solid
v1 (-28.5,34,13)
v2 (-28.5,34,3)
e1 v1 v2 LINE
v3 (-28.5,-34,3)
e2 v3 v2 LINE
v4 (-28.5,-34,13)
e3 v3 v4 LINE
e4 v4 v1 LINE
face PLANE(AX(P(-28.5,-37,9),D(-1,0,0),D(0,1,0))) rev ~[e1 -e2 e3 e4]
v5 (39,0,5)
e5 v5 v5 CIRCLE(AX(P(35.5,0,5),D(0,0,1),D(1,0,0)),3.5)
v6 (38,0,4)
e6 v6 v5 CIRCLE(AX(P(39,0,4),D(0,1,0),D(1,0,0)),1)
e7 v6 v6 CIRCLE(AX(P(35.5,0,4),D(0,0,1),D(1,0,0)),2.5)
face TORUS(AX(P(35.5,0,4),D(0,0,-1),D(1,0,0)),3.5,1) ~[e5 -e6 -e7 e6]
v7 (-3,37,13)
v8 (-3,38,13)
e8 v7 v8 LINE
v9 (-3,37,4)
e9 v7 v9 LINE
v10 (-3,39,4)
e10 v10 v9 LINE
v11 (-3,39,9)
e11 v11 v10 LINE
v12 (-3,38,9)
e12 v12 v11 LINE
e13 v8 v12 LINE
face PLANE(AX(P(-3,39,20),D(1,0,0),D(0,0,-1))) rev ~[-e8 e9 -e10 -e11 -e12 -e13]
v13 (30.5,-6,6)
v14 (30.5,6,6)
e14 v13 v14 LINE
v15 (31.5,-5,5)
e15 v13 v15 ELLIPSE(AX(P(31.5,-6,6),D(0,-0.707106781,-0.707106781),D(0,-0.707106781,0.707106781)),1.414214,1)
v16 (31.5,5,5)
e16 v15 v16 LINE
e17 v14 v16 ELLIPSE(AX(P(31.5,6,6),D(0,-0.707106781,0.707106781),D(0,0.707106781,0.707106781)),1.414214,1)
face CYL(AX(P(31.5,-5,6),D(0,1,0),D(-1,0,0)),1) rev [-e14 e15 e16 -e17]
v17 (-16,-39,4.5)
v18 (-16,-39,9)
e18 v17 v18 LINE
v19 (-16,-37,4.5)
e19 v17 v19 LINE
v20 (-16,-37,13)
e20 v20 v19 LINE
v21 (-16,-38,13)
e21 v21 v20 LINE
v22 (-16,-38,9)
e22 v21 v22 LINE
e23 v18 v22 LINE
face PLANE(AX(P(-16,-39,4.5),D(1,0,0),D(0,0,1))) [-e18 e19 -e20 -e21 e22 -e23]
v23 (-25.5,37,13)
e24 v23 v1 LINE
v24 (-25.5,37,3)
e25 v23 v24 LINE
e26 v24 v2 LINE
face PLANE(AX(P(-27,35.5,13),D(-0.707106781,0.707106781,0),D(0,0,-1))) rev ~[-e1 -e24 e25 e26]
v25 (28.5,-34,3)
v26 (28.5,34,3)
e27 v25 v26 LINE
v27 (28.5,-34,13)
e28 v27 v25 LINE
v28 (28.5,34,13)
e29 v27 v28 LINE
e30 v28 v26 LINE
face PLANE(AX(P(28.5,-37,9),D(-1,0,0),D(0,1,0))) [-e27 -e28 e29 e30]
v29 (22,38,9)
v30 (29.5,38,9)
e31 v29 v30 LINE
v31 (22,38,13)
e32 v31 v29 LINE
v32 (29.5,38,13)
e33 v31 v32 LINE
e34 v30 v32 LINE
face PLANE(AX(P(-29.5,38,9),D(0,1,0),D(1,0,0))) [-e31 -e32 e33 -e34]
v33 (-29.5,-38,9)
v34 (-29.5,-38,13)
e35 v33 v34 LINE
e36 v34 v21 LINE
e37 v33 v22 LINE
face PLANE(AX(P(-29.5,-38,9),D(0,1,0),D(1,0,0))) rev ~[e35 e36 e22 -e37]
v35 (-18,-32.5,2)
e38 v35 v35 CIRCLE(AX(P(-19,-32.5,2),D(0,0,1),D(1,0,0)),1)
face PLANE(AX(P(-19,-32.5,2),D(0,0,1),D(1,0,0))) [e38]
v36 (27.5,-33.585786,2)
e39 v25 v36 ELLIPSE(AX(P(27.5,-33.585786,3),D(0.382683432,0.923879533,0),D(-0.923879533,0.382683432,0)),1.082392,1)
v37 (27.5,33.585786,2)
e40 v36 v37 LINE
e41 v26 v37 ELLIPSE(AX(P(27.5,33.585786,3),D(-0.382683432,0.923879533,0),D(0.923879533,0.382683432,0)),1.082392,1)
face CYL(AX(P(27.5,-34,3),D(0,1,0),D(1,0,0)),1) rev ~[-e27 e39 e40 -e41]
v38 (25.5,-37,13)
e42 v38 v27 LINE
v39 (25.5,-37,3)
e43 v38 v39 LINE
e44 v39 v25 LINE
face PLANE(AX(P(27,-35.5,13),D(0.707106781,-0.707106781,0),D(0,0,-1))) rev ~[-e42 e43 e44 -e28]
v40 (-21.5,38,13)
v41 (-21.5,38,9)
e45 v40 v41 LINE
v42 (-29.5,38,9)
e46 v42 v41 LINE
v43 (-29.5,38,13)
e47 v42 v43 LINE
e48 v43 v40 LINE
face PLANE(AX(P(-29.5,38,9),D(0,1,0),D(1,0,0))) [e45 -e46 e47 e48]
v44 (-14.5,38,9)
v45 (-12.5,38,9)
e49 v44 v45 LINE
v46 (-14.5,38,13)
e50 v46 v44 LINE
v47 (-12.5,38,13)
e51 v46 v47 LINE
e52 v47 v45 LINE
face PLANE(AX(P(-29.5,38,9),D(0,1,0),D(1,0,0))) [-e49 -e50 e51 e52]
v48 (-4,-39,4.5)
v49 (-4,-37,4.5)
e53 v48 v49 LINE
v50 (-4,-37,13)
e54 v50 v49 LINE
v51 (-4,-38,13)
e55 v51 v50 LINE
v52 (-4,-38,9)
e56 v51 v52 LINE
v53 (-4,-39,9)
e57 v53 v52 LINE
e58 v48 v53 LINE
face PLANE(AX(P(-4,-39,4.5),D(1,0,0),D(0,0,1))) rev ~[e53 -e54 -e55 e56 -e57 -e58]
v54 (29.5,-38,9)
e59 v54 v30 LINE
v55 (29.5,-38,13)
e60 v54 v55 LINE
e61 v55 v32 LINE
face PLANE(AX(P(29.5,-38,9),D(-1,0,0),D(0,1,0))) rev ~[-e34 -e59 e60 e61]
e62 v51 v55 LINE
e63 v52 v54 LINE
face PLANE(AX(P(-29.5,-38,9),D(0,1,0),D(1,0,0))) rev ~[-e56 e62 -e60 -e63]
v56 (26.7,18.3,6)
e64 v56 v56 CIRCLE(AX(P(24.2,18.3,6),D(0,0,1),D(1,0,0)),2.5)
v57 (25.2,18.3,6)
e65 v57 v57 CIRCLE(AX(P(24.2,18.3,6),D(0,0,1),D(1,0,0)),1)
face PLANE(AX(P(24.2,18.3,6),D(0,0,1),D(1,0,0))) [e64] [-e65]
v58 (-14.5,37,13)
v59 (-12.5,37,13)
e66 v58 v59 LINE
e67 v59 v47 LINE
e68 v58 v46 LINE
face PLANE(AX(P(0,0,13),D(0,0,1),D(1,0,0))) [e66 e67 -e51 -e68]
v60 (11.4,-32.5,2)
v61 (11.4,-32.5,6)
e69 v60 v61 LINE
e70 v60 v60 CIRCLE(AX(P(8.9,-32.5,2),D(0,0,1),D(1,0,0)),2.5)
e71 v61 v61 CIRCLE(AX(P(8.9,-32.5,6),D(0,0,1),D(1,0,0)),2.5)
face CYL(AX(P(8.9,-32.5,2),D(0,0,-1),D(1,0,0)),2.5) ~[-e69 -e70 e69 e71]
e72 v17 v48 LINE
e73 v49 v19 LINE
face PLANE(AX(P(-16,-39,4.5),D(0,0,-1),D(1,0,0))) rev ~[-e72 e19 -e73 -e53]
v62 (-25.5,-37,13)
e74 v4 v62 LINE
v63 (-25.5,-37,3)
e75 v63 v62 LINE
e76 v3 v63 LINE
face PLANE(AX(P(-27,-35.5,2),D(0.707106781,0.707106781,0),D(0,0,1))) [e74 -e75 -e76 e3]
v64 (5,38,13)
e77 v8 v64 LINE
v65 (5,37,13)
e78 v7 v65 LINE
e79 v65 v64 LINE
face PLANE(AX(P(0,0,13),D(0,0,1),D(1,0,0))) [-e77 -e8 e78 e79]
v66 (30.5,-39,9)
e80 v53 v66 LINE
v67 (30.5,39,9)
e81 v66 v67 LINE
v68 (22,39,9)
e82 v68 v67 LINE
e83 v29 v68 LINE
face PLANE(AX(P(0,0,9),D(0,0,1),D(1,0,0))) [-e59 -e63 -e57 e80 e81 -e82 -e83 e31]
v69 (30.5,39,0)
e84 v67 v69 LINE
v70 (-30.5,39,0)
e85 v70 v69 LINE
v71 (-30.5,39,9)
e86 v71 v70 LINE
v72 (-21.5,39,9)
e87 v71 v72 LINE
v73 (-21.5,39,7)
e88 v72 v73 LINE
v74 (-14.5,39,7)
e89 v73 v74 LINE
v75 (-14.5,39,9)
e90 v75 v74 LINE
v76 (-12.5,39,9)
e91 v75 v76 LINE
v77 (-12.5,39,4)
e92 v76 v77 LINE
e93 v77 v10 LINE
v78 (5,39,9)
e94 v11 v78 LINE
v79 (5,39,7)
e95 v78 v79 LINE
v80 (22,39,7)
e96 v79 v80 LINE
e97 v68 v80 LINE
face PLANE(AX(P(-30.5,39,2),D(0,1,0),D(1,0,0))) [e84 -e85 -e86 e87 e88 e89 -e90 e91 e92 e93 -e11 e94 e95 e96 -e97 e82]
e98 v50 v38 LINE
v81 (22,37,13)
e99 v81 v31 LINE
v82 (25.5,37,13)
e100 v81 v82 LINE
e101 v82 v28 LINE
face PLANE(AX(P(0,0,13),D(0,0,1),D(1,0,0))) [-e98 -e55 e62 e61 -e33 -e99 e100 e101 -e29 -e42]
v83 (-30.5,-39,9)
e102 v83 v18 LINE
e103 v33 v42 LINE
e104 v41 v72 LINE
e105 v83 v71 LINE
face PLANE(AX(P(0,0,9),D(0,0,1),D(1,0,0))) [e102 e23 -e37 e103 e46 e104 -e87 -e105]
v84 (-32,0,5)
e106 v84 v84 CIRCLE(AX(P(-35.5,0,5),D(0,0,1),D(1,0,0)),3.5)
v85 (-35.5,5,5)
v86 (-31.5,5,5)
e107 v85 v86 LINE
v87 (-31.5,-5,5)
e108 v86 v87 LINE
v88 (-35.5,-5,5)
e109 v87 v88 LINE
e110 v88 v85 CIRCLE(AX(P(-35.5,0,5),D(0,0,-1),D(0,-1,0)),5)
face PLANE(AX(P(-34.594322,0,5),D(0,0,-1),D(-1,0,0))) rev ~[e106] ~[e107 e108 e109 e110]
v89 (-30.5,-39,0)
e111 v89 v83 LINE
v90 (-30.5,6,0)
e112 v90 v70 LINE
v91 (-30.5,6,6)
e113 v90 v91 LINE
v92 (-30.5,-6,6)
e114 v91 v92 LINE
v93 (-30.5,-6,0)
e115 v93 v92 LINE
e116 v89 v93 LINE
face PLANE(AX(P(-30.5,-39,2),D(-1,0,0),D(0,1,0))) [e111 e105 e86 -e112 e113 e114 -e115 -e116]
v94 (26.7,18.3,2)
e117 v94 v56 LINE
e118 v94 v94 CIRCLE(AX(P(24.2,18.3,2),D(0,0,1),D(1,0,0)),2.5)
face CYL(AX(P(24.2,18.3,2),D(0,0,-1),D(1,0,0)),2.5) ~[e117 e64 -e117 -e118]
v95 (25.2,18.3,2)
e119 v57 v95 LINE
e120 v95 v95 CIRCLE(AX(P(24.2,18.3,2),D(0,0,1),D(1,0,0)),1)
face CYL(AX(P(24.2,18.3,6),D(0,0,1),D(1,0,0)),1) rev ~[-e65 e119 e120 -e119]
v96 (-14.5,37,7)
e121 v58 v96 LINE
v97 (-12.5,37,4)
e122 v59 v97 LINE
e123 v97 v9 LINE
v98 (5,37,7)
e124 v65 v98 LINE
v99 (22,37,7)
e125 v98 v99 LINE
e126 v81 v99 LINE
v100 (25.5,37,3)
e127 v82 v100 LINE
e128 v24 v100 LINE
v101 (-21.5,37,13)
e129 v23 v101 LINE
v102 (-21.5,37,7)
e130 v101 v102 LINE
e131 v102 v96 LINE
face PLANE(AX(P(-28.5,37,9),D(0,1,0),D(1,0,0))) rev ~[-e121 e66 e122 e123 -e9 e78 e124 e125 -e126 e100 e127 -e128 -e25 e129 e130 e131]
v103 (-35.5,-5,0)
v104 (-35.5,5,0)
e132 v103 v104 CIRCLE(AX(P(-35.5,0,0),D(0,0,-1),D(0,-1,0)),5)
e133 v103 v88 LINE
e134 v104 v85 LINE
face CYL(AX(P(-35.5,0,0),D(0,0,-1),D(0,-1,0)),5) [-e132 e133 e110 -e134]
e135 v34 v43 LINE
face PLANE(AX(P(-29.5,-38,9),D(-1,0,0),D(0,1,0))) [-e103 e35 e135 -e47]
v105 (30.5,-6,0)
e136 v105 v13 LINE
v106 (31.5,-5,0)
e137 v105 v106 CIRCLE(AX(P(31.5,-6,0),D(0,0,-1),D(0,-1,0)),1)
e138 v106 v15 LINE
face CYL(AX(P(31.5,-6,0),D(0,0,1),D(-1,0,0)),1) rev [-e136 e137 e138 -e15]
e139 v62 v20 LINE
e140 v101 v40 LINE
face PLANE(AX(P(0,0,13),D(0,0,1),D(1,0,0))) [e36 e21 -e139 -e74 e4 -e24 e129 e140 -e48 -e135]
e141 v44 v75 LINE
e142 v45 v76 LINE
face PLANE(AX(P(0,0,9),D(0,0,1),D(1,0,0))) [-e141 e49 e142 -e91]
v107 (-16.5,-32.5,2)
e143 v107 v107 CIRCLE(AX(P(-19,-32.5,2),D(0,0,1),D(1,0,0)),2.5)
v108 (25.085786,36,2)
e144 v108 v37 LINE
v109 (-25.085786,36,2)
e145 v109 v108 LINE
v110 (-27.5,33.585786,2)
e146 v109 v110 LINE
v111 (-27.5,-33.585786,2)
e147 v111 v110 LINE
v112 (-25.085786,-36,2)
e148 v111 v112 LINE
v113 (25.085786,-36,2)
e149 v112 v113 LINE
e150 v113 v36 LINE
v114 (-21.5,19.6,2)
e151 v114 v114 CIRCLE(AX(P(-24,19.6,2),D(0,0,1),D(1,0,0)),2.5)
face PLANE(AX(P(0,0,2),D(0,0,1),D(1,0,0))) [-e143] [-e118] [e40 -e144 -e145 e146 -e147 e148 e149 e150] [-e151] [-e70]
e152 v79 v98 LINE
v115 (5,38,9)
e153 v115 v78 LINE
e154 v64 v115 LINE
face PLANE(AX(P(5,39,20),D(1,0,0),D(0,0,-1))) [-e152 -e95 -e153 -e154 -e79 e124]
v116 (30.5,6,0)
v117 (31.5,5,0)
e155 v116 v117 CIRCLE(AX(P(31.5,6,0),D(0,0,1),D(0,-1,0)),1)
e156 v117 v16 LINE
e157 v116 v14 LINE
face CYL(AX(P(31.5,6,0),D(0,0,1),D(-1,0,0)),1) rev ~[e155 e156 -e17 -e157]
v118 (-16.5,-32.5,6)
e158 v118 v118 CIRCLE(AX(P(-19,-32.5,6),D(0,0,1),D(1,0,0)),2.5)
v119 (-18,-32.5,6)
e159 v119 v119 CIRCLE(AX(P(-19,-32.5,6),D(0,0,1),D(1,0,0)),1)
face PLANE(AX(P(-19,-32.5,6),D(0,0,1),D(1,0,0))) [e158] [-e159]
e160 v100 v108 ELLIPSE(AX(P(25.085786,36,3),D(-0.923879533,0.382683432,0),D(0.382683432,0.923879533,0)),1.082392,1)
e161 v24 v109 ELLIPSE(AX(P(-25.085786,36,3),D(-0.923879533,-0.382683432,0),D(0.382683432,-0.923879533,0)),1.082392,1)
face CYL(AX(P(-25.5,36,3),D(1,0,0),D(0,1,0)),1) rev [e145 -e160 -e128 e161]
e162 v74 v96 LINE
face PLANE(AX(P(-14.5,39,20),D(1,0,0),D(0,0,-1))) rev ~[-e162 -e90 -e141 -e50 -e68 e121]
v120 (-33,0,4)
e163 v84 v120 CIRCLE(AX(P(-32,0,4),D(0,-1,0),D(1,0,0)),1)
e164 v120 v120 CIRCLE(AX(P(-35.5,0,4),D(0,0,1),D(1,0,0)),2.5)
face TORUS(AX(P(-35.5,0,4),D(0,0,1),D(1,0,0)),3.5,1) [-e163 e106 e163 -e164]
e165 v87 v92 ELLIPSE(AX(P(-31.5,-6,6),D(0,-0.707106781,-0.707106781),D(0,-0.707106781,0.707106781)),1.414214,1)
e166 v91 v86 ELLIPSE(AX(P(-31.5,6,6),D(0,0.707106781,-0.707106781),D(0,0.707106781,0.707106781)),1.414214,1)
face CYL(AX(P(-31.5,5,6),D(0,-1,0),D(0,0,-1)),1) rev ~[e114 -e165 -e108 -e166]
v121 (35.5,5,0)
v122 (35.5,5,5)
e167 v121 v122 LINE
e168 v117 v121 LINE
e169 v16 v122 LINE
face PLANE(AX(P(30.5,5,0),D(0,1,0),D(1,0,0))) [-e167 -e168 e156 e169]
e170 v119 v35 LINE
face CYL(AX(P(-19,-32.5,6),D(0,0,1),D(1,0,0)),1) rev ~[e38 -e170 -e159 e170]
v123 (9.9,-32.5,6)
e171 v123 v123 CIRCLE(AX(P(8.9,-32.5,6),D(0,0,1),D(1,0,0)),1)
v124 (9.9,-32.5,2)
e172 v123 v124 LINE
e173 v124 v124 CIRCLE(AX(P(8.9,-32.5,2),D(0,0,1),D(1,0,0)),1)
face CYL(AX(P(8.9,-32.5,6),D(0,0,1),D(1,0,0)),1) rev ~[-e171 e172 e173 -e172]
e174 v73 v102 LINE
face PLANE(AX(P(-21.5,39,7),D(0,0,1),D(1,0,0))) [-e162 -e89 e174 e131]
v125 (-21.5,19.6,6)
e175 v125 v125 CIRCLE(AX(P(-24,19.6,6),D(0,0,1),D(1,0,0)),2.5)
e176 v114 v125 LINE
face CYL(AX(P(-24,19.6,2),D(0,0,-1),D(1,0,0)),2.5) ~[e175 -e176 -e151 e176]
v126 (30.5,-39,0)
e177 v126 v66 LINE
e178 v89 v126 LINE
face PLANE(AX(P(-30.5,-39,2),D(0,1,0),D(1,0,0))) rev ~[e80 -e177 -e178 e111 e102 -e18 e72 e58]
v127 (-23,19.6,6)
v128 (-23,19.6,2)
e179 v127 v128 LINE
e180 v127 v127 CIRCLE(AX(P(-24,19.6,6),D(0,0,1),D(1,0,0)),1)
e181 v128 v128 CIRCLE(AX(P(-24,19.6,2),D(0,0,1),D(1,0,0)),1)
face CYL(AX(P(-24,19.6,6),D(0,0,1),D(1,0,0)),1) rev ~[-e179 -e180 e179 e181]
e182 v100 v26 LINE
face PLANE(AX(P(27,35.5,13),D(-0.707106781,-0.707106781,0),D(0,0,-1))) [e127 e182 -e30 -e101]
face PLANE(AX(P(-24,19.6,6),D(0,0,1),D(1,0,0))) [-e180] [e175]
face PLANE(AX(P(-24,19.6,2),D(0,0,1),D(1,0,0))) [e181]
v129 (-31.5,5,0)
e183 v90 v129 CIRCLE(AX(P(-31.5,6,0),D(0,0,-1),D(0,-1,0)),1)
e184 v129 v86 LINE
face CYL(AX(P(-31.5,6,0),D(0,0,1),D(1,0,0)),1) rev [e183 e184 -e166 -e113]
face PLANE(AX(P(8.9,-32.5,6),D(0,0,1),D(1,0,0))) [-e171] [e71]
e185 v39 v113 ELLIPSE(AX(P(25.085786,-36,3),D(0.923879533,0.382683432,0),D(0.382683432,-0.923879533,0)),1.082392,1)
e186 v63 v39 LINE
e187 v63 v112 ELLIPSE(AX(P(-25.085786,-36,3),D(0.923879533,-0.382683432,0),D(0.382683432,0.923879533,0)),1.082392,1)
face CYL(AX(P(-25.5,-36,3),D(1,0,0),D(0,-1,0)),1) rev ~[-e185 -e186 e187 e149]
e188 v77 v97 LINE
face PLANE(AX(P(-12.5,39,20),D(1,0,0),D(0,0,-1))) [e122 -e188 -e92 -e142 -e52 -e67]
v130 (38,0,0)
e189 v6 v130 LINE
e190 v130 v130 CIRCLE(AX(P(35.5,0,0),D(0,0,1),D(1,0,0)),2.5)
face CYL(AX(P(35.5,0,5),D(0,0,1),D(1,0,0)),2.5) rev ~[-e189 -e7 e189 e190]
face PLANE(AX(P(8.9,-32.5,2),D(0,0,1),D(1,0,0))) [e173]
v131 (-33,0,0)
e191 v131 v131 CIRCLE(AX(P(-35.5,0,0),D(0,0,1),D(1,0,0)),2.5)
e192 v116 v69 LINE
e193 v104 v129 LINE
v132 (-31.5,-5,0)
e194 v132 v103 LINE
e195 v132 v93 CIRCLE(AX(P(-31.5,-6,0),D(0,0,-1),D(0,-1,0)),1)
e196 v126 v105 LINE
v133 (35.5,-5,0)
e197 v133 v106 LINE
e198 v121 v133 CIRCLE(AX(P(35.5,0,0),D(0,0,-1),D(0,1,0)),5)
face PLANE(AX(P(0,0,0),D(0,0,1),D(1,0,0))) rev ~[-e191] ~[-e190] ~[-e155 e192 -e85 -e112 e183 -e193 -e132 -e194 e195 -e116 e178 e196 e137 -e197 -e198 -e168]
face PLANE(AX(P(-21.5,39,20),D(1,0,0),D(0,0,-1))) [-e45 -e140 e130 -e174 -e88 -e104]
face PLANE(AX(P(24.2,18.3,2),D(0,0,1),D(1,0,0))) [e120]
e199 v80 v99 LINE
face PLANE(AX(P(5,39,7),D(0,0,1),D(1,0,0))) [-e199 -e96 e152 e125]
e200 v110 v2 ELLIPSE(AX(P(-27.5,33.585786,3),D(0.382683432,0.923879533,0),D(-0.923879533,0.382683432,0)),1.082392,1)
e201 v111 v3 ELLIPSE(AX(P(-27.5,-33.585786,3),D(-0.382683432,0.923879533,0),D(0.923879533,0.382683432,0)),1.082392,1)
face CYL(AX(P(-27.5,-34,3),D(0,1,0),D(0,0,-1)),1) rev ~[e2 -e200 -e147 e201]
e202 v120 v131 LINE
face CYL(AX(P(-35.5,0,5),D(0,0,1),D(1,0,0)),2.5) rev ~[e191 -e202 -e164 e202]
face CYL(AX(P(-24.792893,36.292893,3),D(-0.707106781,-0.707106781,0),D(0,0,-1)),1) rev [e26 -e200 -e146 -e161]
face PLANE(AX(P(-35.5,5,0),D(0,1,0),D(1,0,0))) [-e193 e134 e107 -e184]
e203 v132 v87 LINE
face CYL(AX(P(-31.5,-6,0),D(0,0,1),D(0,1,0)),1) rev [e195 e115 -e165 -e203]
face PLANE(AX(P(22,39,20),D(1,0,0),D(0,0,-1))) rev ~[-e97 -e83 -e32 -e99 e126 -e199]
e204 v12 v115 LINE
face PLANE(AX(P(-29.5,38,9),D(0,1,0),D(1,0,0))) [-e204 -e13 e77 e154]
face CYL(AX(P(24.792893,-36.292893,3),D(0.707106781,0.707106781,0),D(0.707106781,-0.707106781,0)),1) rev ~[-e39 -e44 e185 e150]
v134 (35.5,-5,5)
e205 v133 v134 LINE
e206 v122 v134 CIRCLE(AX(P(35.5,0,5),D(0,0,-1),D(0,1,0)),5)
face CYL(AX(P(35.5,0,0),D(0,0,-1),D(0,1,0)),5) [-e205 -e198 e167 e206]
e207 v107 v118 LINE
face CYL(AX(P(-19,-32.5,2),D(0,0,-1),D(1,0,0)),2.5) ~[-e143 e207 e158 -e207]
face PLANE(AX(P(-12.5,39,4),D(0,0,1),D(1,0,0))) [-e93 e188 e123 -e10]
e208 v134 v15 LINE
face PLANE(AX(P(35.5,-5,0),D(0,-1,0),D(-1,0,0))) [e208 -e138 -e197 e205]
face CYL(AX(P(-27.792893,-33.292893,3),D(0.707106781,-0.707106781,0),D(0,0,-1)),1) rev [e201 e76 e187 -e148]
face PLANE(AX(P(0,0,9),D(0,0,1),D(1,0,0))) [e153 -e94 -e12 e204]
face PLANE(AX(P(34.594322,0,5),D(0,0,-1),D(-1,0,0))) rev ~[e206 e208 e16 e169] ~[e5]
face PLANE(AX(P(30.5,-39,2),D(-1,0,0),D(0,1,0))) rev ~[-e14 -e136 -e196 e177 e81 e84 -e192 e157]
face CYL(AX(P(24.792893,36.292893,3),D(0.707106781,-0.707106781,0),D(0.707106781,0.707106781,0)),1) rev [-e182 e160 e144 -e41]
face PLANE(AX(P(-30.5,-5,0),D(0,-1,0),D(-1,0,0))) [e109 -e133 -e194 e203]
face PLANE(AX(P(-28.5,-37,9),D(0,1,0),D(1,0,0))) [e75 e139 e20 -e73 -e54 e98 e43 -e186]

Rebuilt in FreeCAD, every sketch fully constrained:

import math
import FreeCAD as App
import Part
import Sketcher
Q = App.Units.Quantity


def edges_at(feature, points):
    """Names of the edges that pass closest to the given points."""
    edges = feature.Shape.Edges
    near = lambda p: min(range(len(edges)), key=lambda i: edges[i].distToShape(Part.Vertex(*p))[0])
    return sorted({f"Edge{near(p) + 1}" for p in points})

doc = App.newDocument("Part")
body = doc.addObject("PartDesign::Body", "Body")

# Sketch on XY plane
sketch1 = doc.addObject("Sketcher::SketchObject", "Sketch")
body.addObject(sketch1)
sketch1.AttachmentSupport = (doc.XY_Plane, [""])
sketch1.MapMode = "FlatFace"
sketch1.addGeometry(Part.LineSegment(App.Vector(-30.5, 39, 0), App.Vector(-30.5, -39, 0)), False)
sketch1.addGeometry(Part.LineSegment(App.Vector(-30.5, -39, 0), App.Vector(30.5, -39, 0)), False)
sketch1.addGeometry(Part.LineSegment(App.Vector(30.5, -39, 0), App.Vector(30.5, 39, 0)), False)
sketch1.addGeometry(Part.LineSegment(App.Vector(30.5, 39, 0), App.Vector(-30.5, 39, 0)), False)
sketch1.addConstraint(Sketcher.Constraint("Coincident", 0, 2, 1, 1))
sketch1.addConstraint(Sketcher.Constraint("Coincident", 1, 2, 2, 1))
sketch1.addConstraint(Sketcher.Constraint("Coincident", 2, 2, 3, 1))
sketch1.addConstraint(Sketcher.Constraint("Coincident", 3, 2, 0, 1))
sketch1.addConstraint(Sketcher.Constraint("Vertical", 0))
sketch1.addConstraint(Sketcher.Constraint("Horizontal", 1))
sketch1.addConstraint(Sketcher.Constraint("Vertical", 2))
sketch1.addConstraint(Sketcher.Constraint("Horizontal", 3))
sketch1.addConstraint(Sketcher.Constraint("Symmetric", 0, 2, 2, 2, -1, 1))
sketch1.addConstraint(Sketcher.Constraint("DistanceX", 1, 1, 1, 2, Q("61 mm")))
sketch1.addConstraint(Sketcher.Constraint("DistanceY", 0, 2, 0, 1, Q("78 mm")))
pad1 = doc.addObject("PartDesign::Pad", "Pad")
body.addObject(pad1)
pad1.Profile = sketch1
pad1.Length = 2

# Sketch on XY plane
sketch2 = doc.addObject("Sketcher::SketchObject", "Sketch001")
body.addObject(sketch2)
sketch2.AttachmentSupport = (doc.XY_Plane, [""])
sketch2.MapMode = "FlatFace"
sketch2.AttachmentOffset = App.Placement(App.Vector(0, 0, 2), App.Rotation())
sketch2.addGeometry(Part.LineSegment(App.Vector(-30.5, 39, 0), App.Vector(-30.5, -39, 0)), False)
sketch2.addGeometry(Part.LineSegment(App.Vector(-30.5, -39, 0), App.Vector(30.5, -39, 0)), False)
sketch2.addGeometry(Part.LineSegment(App.Vector(30.5, -39, 0), App.Vector(30.5, 39, 0)), False)
sketch2.addGeometry(Part.LineSegment(App.Vector(30.5, 39, 0), App.Vector(-30.5, 39, 0)), False)
sketch2.addGeometry(Part.LineSegment(App.Vector(28.5, -37, 0), App.Vector(-28.5, -37, 0)), False)
sketch2.addGeometry(Part.LineSegment(App.Vector(-28.5, -37, 0), App.Vector(-28.5, 37, 0)), False)
sketch2.addGeometry(Part.LineSegment(App.Vector(-28.5, 37, 0), App.Vector(28.5, 37, 0)), False)
sketch2.addGeometry(Part.LineSegment(App.Vector(28.5, 37, 0), App.Vector(28.5, -37, 0)), False)
sketch2.addConstraint(Sketcher.Constraint("Coincident", 0, 2, 1, 1))
sketch2.addConstraint(Sketcher.Constraint("Coincident", 1, 2, 2, 1))
sketch2.addConstraint(Sketcher.Constraint("Coincident", 2, 2, 3, 1))
sketch2.addConstraint(Sketcher.Constraint("Coincident", 3, 2, 0, 1))
sketch2.addConstraint(Sketcher.Constraint("Coincident", 4, 2, 5, 1))
sketch2.addConstraint(Sketcher.Constraint("Coincident", 5, 2, 6, 1))
sketch2.addConstraint(Sketcher.Constraint("Coincident", 6, 2, 7, 1))
sketch2.addConstraint(Sketcher.Constraint("Coincident", 7, 2, 4, 1))
sketch2.addConstraint(Sketcher.Constraint("Vertical", 0))
sketch2.addConstraint(Sketcher.Constraint("Horizontal", 1))
sketch2.addConstraint(Sketcher.Constraint("Vertical", 2))
sketch2.addConstraint(Sketcher.Constraint("Horizontal", 3))
sketch2.addConstraint(Sketcher.Constraint("Horizontal", 4))
sketch2.addConstraint(Sketcher.Constraint("Vertical", 5))
sketch2.addConstraint(Sketcher.Constraint("Horizontal", 6))
sketch2.addConstraint(Sketcher.Constraint("Vertical", 7))
sketch2.addConstraint(Sketcher.Constraint("Symmetric", 0, 2, 2, 2, -1, 1))
sketch2.addConstraint(Sketcher.Constraint("Symmetric", 4, 2, 6, 2, -1, 1))
sketch2.addConstraint(Sketcher.Constraint("DistanceX", 1, 1, 1, 2, Q("61 mm")))
sketch2.addConstraint(Sketcher.Constraint("DistanceX", 4, 2, 4, 1, Q("57 mm")))
sketch2.addConstraint(Sketcher.Constraint("DistanceY", 0, 2, 0, 1, Q("78 mm")))
sketch2.addConstraint(Sketcher.Constraint("DistanceY", 5, 1, 5, 2, Q("74 mm")))
pad2 = doc.addObject("PartDesign::Pad", "Pad001")
body.addObject(pad2)
pad2.Profile = sketch2
pad2.Length = 7

# Sketch on XY plane
sketch3 = doc.addObject("Sketcher::SketchObject", "Sketch002")
body.addObject(sketch3)
sketch3.AttachmentSupport = (doc.XY_Plane, [""])
sketch3.MapMode = "FlatFace"
sketch3.AttachmentOffset = App.Placement(App.Vector(0, 0, 9), App.Rotation())
sketch3.addGeometry(Part.LineSegment(App.Vector(-29.5, 38, 0), App.Vector(-29.5, -38, 0)), False)
sketch3.addGeometry(Part.LineSegment(App.Vector(-29.5, -38, 0), App.Vector(29.5, -38, 0)), False)
sketch3.addGeometry(Part.LineSegment(App.Vector(29.5, -38, 0), App.Vector(29.5, 38, 0)), False)
sketch3.addGeometry(Part.LineSegment(App.Vector(29.5, 38, 0), App.Vector(-29.5, 38, 0)), False)
sketch3.addGeometry(Part.LineSegment(App.Vector(28.5, -37, 0), App.Vector(-28.5, -37, 0)), False)
sketch3.addGeometry(Part.LineSegment(App.Vector(-28.5, -37, 0), App.Vector(-28.5, 37, 0)), False)
sketch3.addGeometry(Part.LineSegment(App.Vector(-28.5, 37, 0), App.Vector(28.5, 37, 0)), False)
sketch3.addGeometry(Part.LineSegment(App.Vector(28.5, 37, 0), App.Vector(28.5, -37, 0)), False)
sketch3.addConstraint(Sketcher.Constraint("Coincident", 0, 2, 1, 1))
sketch3.addConstraint(Sketcher.Constraint("Coincident", 1, 2, 2, 1))
sketch3.addConstraint(Sketcher.Constraint("Coincident", 2, 2, 3, 1))
sketch3.addConstraint(Sketcher.Constraint("Coincident", 3, 2, 0, 1))
sketch3.addConstraint(Sketcher.Constraint("Coincident", 4, 2, 5, 1))
sketch3.addConstraint(Sketcher.Constraint("Coincident", 5, 2, 6, 1))
sketch3.addConstraint(Sketcher.Constraint("Coincident", 6, 2, 7, 1))
sketch3.addConstraint(Sketcher.Constraint("Coincident", 7, 2, 4, 1))
sketch3.addConstraint(Sketcher.Constraint("Vertical", 0))
sketch3.addConstraint(Sketcher.Constraint("Horizontal", 1))
sketch3.addConstraint(Sketcher.Constraint("Vertical", 2))
sketch3.addConstraint(Sketcher.Constraint("Horizontal", 3))
sketch3.addConstraint(Sketcher.Constraint("Horizontal", 4))
sketch3.addConstraint(Sketcher.Constraint("Vertical", 5))
sketch3.addConstraint(Sketcher.Constraint("Horizontal", 6))
sketch3.addConstraint(Sketcher.Constraint("Vertical", 7))
sketch3.addConstraint(Sketcher.Constraint("Symmetric", 0, 2, 2, 2, -1, 1))
sketch3.addConstraint(Sketcher.Constraint("Symmetric", 4, 2, 6, 2, -1, 1))
sketch3.addConstraint(Sketcher.Constraint("DistanceX", 1, 1, 1, 2, Q("59 mm")))
sketch3.addConstraint(Sketcher.Constraint("DistanceX", 4, 2, 4, 1, Q("57 mm")))
sketch3.addConstraint(Sketcher.Constraint("DistanceY", 0, 2, 0, 1, Q("76 mm")))
sketch3.addConstraint(Sketcher.Constraint("DistanceY", 5, 1, 5, 2, Q("74 mm")))
pad3 = doc.addObject("PartDesign::Pad", "Pad002")
body.addObject(pad3)
pad3.Profile = sketch3
pad3.Length = 4

# Sketch on XY plane
sketch4 = doc.addObject("Sketcher::SketchObject", "Sketch003")
body.addObject(sketch4)
sketch4.AttachmentSupport = (doc.XY_Plane, [""])
sketch4.MapMode = "FlatFace"
sketch4.AttachmentOffset = App.Placement(App.Vector(0, 0, 2), App.Rotation())
sketch4.addGeometry(Part.Circle(App.Vector(-24, 19.6, 0), App.Vector(0, 0, 1), 2.5), False)
sketch4.addGeometry(Part.Circle(App.Vector(24.2, 18.3, 0), App.Vector(0, 0, 1), 2.5), False)
sketch4.addGeometry(Part.Circle(App.Vector(8.9, -32.5, 0), App.Vector(0, 0, 1), 2.5), False)
sketch4.addGeometry(Part.Circle(App.Vector(-19, -32.5, 0), App.Vector(0, 0, 1), 2.5), False)
sketch4.addConstraint(Sketcher.Constraint("Equal", 0, 1))
sketch4.addConstraint(Sketcher.Constraint("Equal", 1, 2))
sketch4.addConstraint(Sketcher.Constraint("Equal", 2, 3))
sketch4.addConstraint(Sketcher.Constraint("Horizontal", 2, 3, 3, 3))
sketch4.addConstraint(Sketcher.Constraint("Diameter", 0, Q("5 mm")))
sketch4.addConstraint(Sketcher.Constraint("DistanceX", 0, 3, -1, 1, Q("24 mm")))
sketch4.addConstraint(Sketcher.Constraint("DistanceX", 3, 3, -1, 1, Q("19 mm")))
sketch4.addConstraint(Sketcher.Constraint("DistanceY", -1, 1, 0, 3, Q("19.6 mm")))
sketch4.addConstraint(Sketcher.Constraint("DistanceX", -1, 1, 1, 3, Q("24.2 mm")))
sketch4.addConstraint(Sketcher.Constraint("DistanceY", -1, 1, 1, 3, Q("18.3 mm")))
sketch4.addConstraint(Sketcher.Constraint("DistanceX", -1, 1, 2, 3, Q("8.9 mm")))
sketch4.addConstraint(Sketcher.Constraint("DistanceY", 2, 3, -1, 1, Q("32.5 mm")))
pad4 = doc.addObject("PartDesign::Pad", "Pad003")
body.addObject(pad4)
pad4.Profile = sketch4
pad4.Length = 4

# Sketch on XZ plane
sketch5 = doc.addObject("Sketcher::SketchObject", "Sketch004")
body.addObject(sketch5)
sketch5.AttachmentSupport = (doc.XZ_Plane, [""])
sketch5.MapMode = "FlatFace"
sketch5.AttachmentOffset = App.Placement(App.Vector(0, 0, 39), App.Rotation())
sketch5.addGeometry(Part.LineSegment(App.Vector(-16, 24.5, 0), App.Vector(-16, 4.5, 0)), False)
sketch5.addGeometry(Part.LineSegment(App.Vector(-16, 4.5, 0), App.Vector(-4, 4.5, 0)), False)
sketch5.addGeometry(Part.LineSegment(App.Vector(-4, 4.5, 0), App.Vector(-4, 24.5, 0)), False)
sketch5.addGeometry(Part.LineSegment(App.Vector(-4, 24.5, 0), App.Vector(-16, 24.5, 0)), False)
sketch5.addConstraint(Sketcher.Constraint("Coincident", 0, 2, 1, 1))
sketch5.addConstraint(Sketcher.Constraint("Coincident", 1, 2, 2, 1))
sketch5.addConstraint(Sketcher.Constraint("Coincident", 2, 2, 3, 1))
sketch5.addConstraint(Sketcher.Constraint("Coincident", 3, 2, 0, 1))
sketch5.addConstraint(Sketcher.Constraint("Vertical", 0))
sketch5.addConstraint(Sketcher.Constraint("Horizontal", 1))
sketch5.addConstraint(Sketcher.Constraint("Vertical", 2))
sketch5.addConstraint(Sketcher.Constraint("Horizontal", 3))
sketch5.addConstraint(Sketcher.Constraint("DistanceX", 1, 1, 1, 2, Q("12 mm")))
sketch5.addConstraint(Sketcher.Constraint("DistanceY", 0, 2, 0, 1, Q("20 mm")))
sketch5.addConstraint(Sketcher.Constraint("DistanceX", 0, 2, -1, 1, Q("16 mm")))
sketch5.addConstraint(Sketcher.Constraint("DistanceY", -1, 1, 0, 2, Q("4.5 mm")))
pocket1 = doc.addObject("PartDesign::Pocket", "Pocket")
body.addObject(pocket1)
pocket1.Profile = sketch5
pocket1.Length = 3

# Sketch on XZ plane
sketch6 = doc.addObject("Sketcher::SketchObject", "Sketch005")
body.addObject(sketch6)
sketch6.AttachmentSupport = (doc.XZ_Plane, [""])
sketch6.MapMode = "FlatFace"
sketch6.AttachmentOffset = App.Placement(App.Vector(0, 0, -39), App.Rotation())
sketch6.addGeometry(Part.LineSegment(App.Vector(5, 7, 0), App.Vector(5, 20, 0)), False)
sketch6.addGeometry(Part.LineSegment(App.Vector(5, 20, 0), App.Vector(22, 20, 0)), False)
sketch6.addGeometry(Part.LineSegment(App.Vector(22, 20, 0), App.Vector(22, 7, 0)), False)
sketch6.addGeometry(Part.LineSegment(App.Vector(22, 7, 0), App.Vector(5, 7, 0)), False)
sketch6.addGeometry(Part.LineSegment(App.Vector(-12.5, 4, 0), App.Vector(-12.5, 20, 0)), False)
sketch6.addGeometry(Part.LineSegment(App.Vector(-12.5, 20, 0), App.Vector(-3, 20, 0)), False)
sketch6.addGeometry(Part.LineSegment(App.Vector(-3, 20, 0), App.Vector(-3, 4, 0)), False)
sketch6.addGeometry(Part.LineSegment(App.Vector(-3, 4, 0), App.Vector(-12.5, 4, 0)), False)
sketch6.addGeometry(Part.LineSegment(App.Vector(-21.5, 7, 0), App.Vector(-21.5, 20, 0)), False)
sketch6.addGeometry(Part.LineSegment(App.Vector(-21.5, 20, 0), App.Vector(-14.5, 20, 0)), False)
sketch6.addGeometry(Part.LineSegment(App.Vector(-14.5, 20, 0), App.Vector(-14.5, 7, 0)), False)
sketch6.addGeometry(Part.LineSegment(App.Vector(-14.5, 7, 0), App.Vector(-21.5, 7, 0)), False)
sketch6.addConstraint(Sketcher.Constraint("Coincident", 0, 2, 1, 1))
sketch6.addConstraint(Sketcher.Constraint("Coincident", 1, 2, 2, 1))
sketch6.addConstraint(Sketcher.Constraint("Coincident", 2, 2, 3, 1))
sketch6.addConstraint(Sketcher.Constraint("Coincident", 3, 2, 0, 1))
sketch6.addConstraint(Sketcher.Constraint("Coincident", 4, 2, 5, 1))
sketch6.addConstraint(Sketcher.Constraint("Coincident", 5, 2, 6, 1))
sketch6.addConstraint(Sketcher.Constraint("Coincident", 6, 2, 7, 1))
sketch6.addConstraint(Sketcher.Constraint("Coincident", 7, 2, 4, 1))
sketch6.addConstraint(Sketcher.Constraint("Coincident", 8, 2, 9, 1))
sketch6.addConstraint(Sketcher.Constraint("Coincident", 9, 2, 10, 1))
sketch6.addConstraint(Sketcher.Constraint("Coincident", 10, 2, 11, 1))
sketch6.addConstraint(Sketcher.Constraint("Coincident", 11, 2, 8, 1))
sketch6.addConstraint(Sketcher.Constraint("Vertical", 0))
sketch6.addConstraint(Sketcher.Constraint("Horizontal", 1))
sketch6.addConstraint(Sketcher.Constraint("Vertical", 2))
sketch6.addConstraint(Sketcher.Constraint("Horizontal", 3))
sketch6.addConstraint(Sketcher.Constraint("Vertical", 4))
sketch6.addConstraint(Sketcher.Constraint("Horizontal", 5))
sketch6.addConstraint(Sketcher.Constraint("Vertical", 6))
sketch6.addConstraint(Sketcher.Constraint("Horizontal", 7))
sketch6.addConstraint(Sketcher.Constraint("Vertical", 8))
sketch6.addConstraint(Sketcher.Constraint("Horizontal", 9))
sketch6.addConstraint(Sketcher.Constraint("Vertical", 10))
sketch6.addConstraint(Sketcher.Constraint("Horizontal", 11))
sketch6.addConstraint(Sketcher.Constraint("Horizontal", 1, 2, 4, 2))
sketch6.addConstraint(Sketcher.Constraint("Horizontal", 5, 2, 8, 2))
sketch6.addConstraint(Sketcher.Constraint("Horizontal", 3, 2, 10, 2))
sketch6.addConstraint(Sketcher.Constraint("DistanceX", 1, 1, 1, 2, Q("17 mm")))
sketch6.addConstraint(Sketcher.Constraint("DistanceX", 9, 1, 9, 2, Q("7 mm")))
sketch6.addConstraint(Sketcher.Constraint("DistanceY", 0, 1, 0, 2, Q("13 mm")))
sketch6.addConstraint(Sketcher.Constraint("DistanceY", 4, 1, 4, 2, Q("16 mm")))
sketch6.addConstraint(Sketcher.Constraint("DistanceX", 5, 1, 5, 2, Q("9.5 mm")))
sketch6.addConstraint(Sketcher.Constraint("DistanceX", -1, 1, 0, 2, Q("5 mm")))
sketch6.addConstraint(Sketcher.Constraint("DistanceY", -1, 1, 0, 2, Q("20 mm")))
sketch6.addConstraint(Sketcher.Constraint("DistanceX", 5, 2, -1, 1, Q("3 mm")))
sketch6.addConstraint(Sketcher.Constraint("DistanceX", 8, 2, 4, 2, Q("9 mm")))
pocket2 = doc.addObject("PartDesign::Pocket", "Pocket001")
body.addObject(pocket2)
pocket2.Profile = sketch6
pocket2.Length = 3
pocket2.Reversed = True

# Sketch on XY plane
sketch7 = doc.addObject("Sketcher::SketchObject", "Sketch006")
body.addObject(sketch7)
sketch7.AttachmentSupport = (doc.XY_Plane, [""])
sketch7.MapMode = "FlatFace"
sketch7.AttachmentOffset = App.Placement(App.Vector(0, 0, 6), App.Rotation())
sketch7.addGeometry(Part.Circle(App.Vector(-24, 19.6, 0), App.Vector(0, 0, 1), 1), False)
sketch7.addGeometry(Part.Circle(App.Vector(24.2, 18.3, 0), App.Vector(0, 0, 1), 1), False)
sketch7.addGeometry(Part.Circle(App.Vector(8.9, -32.5, 0), App.Vector(0, 0, 1), 1), False)
sketch7.addGeometry(Part.Circle(App.Vector(-19, -32.5, 0), App.Vector(0, 0, 1), 1), False)
sketch7.addConstraint(Sketcher.Constraint("Equal", 0, 1))
sketch7.addConstraint(Sketcher.Constraint("Equal", 1, 2))
sketch7.addConstraint(Sketcher.Constraint("Equal", 2, 3))
sketch7.addConstraint(Sketcher.Constraint("Horizontal", 2, 3, 3, 3))
sketch7.addConstraint(Sketcher.Constraint("Diameter", 0, Q("2 mm")))
sketch7.addConstraint(Sketcher.Constraint("DistanceX", 0, 3, -1, 1, Q("24 mm")))
sketch7.addConstraint(Sketcher.Constraint("DistanceX", 3, 3, -1, 1, Q("19 mm")))
sketch7.addConstraint(Sketcher.Constraint("DistanceY", -1, 1, 0, 3, Q("19.6 mm")))
sketch7.addConstraint(Sketcher.Constraint("DistanceX", -1, 1, 1, 3, Q("24.2 mm")))
sketch7.addConstraint(Sketcher.Constraint("DistanceY", -1, 1, 1, 3, Q("18.3 mm")))
sketch7.addConstraint(Sketcher.Constraint("DistanceX", -1, 1, 2, 3, Q("8.9 mm")))
sketch7.addConstraint(Sketcher.Constraint("DistanceY", 2, 3, -1, 1, Q("32.5 mm")))
pocket3 = doc.addObject("PartDesign::Pocket", "Pocket002")
body.addObject(pocket3)
pocket3.Profile = sketch7
pocket3.Length = 4
doc.recompute()

chamfer = doc.addObject("PartDesign::Chamfer", "Chamfer")
body.addObject(chamfer)
chamfer.Base = (pocket3, edges_at(pocket3, [
    (-28.5, -37, 7.5),
    (28.5, -37, 7.5),
    (28.5, 37, 7.5),
    (-28.5, 37, 7.5),
]))
chamfer.Size = 3

# Sketch on XY plane
sketch8 = doc.addObject("Sketcher::SketchObject", "Sketch007")
body.addObject(sketch8)
sketch8.AttachmentSupport = (doc.XY_Plane, [""])
sketch8.MapMode = "FlatFace"
sketch8.addGeometry(Part.LineSegment(App.Vector(30.5, 5, 0), App.Vector(35.5, 5, 0)), False)
sketch8.addGeometry(Part.ArcOfCircle(Part.Circle(App.Vector(35.5, 0, 0), App.Vector(0, 0, 1), 5), math.radians(-90), math.radians(90)), False)
sketch8.addGeometry(Part.LineSegment(App.Vector(35.5, -5, 0), App.Vector(30.5, -5, 0)), False)
sketch8.addGeometry(Part.LineSegment(App.Vector(30.5, -5, 0), App.Vector(30.5, 5, 0)), False)
sketch8.addGeometry(Part.LineSegment(App.Vector(-30.5, -5, 0), App.Vector(-35.5, -5, 0)), False)
sketch8.addGeometry(Part.ArcOfCircle(Part.Circle(App.Vector(-35.5, 0, 0), App.Vector(0, 0, 1), 5), math.radians(90), math.radians(270)), False)
sketch8.addGeometry(Part.LineSegment(App.Vector(-35.5, 5, 0), App.Vector(-30.5, 5, 0)), False)
sketch8.addGeometry(Part.LineSegment(App.Vector(-30.5, 5, 0), App.Vector(-30.5, -5, 0)), False)
sketch8.addConstraint(Sketcher.Constraint("Tangent", 0, 2, 1, 2))
sketch8.addConstraint(Sketcher.Constraint("Tangent", 1, 1, 2, 1))
sketch8.addConstraint(Sketcher.Constraint("Coincident", 2, 2, 3, 1))
sketch8.addConstraint(Sketcher.Constraint("Coincident", 3, 2, 0, 1))
sketch8.addConstraint(Sketcher.Constraint("Tangent", 4, 2, 5, 2))
sketch8.addConstraint(Sketcher.Constraint("Tangent", 5, 1, 6, 1))
sketch8.addConstraint(Sketcher.Constraint("Coincident", 6, 2, 7, 1))
sketch8.addConstraint(Sketcher.Constraint("Coincident", 7, 2, 4, 1))
sketch8.addConstraint(Sketcher.Constraint("Horizontal", 0))
sketch8.addConstraint(Sketcher.Constraint("Horizontal", 2))
sketch8.addConstraint(Sketcher.Constraint("Vertical", 3))
sketch8.addConstraint(Sketcher.Constraint("Horizontal", 4))
sketch8.addConstraint(Sketcher.Constraint("Horizontal", 6))
sketch8.addConstraint(Sketcher.Constraint("Vertical", 7))
sketch8.addConstraint(Sketcher.Constraint("Equal", 1, 5))
sketch8.addConstraint(Sketcher.Constraint("Symmetric", 1, 3, 5, 3, -1, 1))
sketch8.addConstraint(Sketcher.Constraint("Symmetric", 3, 2, 6, 2, -2))
sketch8.addConstraint(Sketcher.Constraint("Radius", 1, Q("5 mm")))
sketch8.addConstraint(Sketcher.Constraint("DistanceX", 0, 1, 0, 2, Q("5 mm")))
sketch8.addConstraint(Sketcher.Constraint("DistanceX", 5, 3, 1, 3, Q("71 mm")))
pad5 = doc.addObject("PartDesign::Pad", "Pad004")
body.addObject(pad5)
pad5.Profile = sketch8
pad5.Length = 5

# Sketch on XY plane
sketch9 = doc.addObject("Sketcher::SketchObject", "Sketch008")
body.addObject(sketch9)
sketch9.AttachmentSupport = (doc.XY_Plane, [""])
sketch9.MapMode = "FlatFace"
sketch9.AttachmentOffset = App.Placement(App.Vector(0, 0, 5), App.Rotation())
sketch9.addGeometry(Part.Circle(App.Vector(-35.5, 0, 0), App.Vector(0, 0, 1), 2.5), False)
sketch9.addConstraint(Sketcher.Constraint("PointOnObject", 0, 3, -1))
sketch9.addConstraint(Sketcher.Constraint("Diameter", 0, Q("5 mm")))
sketch9.addConstraint(Sketcher.Constraint("DistanceX", 0, 3, -1, 1, Q("35.5 mm")))
pocket4 = doc.addObject("PartDesign::Pocket", "Pocket003")
body.addObject(pocket4)
pocket4.Profile = sketch9
pocket4.Type = "UpToFirst"

# Sketch on XY plane
sketch10 = doc.addObject("Sketcher::SketchObject", "Sketch009")
body.addObject(sketch10)
sketch10.AttachmentSupport = (doc.XY_Plane, [""])
sketch10.MapMode = "FlatFace"
sketch10.AttachmentOffset = App.Placement(App.Vector(0, 0, 5), App.Rotation())
sketch10.addGeometry(Part.Circle(App.Vector(35.5, 0, 0), App.Vector(0, 0, 1), 2.5), False)
sketch10.addConstraint(Sketcher.Constraint("PointOnObject", 0, 3, -1))
sketch10.addConstraint(Sketcher.Constraint("Diameter", 0, Q("5 mm")))
sketch10.addConstraint(Sketcher.Constraint("DistanceX", -1, 1, 0, 3, Q("35.5 mm")))
pocket5 = doc.addObject("PartDesign::Pocket", "Pocket004")
body.addObject(pocket5)
pocket5.Profile = sketch10
pocket5.Type = "UpToFirst"
doc.recompute()

fillet = doc.addObject("PartDesign::Fillet", "Fillet")
body.addObject(fillet)
fillet.Base = (pocket5, edges_at(pocket5, [(-38, 0, 5), (33, 0, 5)]))
fillet.Radius = 1
doc.recompute()

fillet2 = doc.addObject("PartDesign::Fillet", "Fillet001")
body.addObject(fillet2)
fillet2.Base = (fillet, edges_at(fillet, [
    (30.5, -5, 2.5),
    (30.5, 5, 2.5),
    (30.5, 0, 5),
    (-30.5, 5, 2.5),
    (-30.5, -5, 2.5),
    (-30.5, 0, 5),
]))
fillet2.Radius = 1
doc.recompute()

fillet3 = doc.addObject("PartDesign::Fillet", "Fillet002")
body.addObject(fillet3)
fillet3.Base = (fillet2, edges_at(fillet2, [
    (0, -37, 2),
    (-28.5, 0, 2),
    (28.5, 0, 2),
    (0, 37, 2),
    (-27, -35.5, 2),
    (-27, 35.5, 2),
    (27, 35.5, 2),
    (27, -35.5, 2),
]))
fillet3.Radius = 1

doc.recompute()
